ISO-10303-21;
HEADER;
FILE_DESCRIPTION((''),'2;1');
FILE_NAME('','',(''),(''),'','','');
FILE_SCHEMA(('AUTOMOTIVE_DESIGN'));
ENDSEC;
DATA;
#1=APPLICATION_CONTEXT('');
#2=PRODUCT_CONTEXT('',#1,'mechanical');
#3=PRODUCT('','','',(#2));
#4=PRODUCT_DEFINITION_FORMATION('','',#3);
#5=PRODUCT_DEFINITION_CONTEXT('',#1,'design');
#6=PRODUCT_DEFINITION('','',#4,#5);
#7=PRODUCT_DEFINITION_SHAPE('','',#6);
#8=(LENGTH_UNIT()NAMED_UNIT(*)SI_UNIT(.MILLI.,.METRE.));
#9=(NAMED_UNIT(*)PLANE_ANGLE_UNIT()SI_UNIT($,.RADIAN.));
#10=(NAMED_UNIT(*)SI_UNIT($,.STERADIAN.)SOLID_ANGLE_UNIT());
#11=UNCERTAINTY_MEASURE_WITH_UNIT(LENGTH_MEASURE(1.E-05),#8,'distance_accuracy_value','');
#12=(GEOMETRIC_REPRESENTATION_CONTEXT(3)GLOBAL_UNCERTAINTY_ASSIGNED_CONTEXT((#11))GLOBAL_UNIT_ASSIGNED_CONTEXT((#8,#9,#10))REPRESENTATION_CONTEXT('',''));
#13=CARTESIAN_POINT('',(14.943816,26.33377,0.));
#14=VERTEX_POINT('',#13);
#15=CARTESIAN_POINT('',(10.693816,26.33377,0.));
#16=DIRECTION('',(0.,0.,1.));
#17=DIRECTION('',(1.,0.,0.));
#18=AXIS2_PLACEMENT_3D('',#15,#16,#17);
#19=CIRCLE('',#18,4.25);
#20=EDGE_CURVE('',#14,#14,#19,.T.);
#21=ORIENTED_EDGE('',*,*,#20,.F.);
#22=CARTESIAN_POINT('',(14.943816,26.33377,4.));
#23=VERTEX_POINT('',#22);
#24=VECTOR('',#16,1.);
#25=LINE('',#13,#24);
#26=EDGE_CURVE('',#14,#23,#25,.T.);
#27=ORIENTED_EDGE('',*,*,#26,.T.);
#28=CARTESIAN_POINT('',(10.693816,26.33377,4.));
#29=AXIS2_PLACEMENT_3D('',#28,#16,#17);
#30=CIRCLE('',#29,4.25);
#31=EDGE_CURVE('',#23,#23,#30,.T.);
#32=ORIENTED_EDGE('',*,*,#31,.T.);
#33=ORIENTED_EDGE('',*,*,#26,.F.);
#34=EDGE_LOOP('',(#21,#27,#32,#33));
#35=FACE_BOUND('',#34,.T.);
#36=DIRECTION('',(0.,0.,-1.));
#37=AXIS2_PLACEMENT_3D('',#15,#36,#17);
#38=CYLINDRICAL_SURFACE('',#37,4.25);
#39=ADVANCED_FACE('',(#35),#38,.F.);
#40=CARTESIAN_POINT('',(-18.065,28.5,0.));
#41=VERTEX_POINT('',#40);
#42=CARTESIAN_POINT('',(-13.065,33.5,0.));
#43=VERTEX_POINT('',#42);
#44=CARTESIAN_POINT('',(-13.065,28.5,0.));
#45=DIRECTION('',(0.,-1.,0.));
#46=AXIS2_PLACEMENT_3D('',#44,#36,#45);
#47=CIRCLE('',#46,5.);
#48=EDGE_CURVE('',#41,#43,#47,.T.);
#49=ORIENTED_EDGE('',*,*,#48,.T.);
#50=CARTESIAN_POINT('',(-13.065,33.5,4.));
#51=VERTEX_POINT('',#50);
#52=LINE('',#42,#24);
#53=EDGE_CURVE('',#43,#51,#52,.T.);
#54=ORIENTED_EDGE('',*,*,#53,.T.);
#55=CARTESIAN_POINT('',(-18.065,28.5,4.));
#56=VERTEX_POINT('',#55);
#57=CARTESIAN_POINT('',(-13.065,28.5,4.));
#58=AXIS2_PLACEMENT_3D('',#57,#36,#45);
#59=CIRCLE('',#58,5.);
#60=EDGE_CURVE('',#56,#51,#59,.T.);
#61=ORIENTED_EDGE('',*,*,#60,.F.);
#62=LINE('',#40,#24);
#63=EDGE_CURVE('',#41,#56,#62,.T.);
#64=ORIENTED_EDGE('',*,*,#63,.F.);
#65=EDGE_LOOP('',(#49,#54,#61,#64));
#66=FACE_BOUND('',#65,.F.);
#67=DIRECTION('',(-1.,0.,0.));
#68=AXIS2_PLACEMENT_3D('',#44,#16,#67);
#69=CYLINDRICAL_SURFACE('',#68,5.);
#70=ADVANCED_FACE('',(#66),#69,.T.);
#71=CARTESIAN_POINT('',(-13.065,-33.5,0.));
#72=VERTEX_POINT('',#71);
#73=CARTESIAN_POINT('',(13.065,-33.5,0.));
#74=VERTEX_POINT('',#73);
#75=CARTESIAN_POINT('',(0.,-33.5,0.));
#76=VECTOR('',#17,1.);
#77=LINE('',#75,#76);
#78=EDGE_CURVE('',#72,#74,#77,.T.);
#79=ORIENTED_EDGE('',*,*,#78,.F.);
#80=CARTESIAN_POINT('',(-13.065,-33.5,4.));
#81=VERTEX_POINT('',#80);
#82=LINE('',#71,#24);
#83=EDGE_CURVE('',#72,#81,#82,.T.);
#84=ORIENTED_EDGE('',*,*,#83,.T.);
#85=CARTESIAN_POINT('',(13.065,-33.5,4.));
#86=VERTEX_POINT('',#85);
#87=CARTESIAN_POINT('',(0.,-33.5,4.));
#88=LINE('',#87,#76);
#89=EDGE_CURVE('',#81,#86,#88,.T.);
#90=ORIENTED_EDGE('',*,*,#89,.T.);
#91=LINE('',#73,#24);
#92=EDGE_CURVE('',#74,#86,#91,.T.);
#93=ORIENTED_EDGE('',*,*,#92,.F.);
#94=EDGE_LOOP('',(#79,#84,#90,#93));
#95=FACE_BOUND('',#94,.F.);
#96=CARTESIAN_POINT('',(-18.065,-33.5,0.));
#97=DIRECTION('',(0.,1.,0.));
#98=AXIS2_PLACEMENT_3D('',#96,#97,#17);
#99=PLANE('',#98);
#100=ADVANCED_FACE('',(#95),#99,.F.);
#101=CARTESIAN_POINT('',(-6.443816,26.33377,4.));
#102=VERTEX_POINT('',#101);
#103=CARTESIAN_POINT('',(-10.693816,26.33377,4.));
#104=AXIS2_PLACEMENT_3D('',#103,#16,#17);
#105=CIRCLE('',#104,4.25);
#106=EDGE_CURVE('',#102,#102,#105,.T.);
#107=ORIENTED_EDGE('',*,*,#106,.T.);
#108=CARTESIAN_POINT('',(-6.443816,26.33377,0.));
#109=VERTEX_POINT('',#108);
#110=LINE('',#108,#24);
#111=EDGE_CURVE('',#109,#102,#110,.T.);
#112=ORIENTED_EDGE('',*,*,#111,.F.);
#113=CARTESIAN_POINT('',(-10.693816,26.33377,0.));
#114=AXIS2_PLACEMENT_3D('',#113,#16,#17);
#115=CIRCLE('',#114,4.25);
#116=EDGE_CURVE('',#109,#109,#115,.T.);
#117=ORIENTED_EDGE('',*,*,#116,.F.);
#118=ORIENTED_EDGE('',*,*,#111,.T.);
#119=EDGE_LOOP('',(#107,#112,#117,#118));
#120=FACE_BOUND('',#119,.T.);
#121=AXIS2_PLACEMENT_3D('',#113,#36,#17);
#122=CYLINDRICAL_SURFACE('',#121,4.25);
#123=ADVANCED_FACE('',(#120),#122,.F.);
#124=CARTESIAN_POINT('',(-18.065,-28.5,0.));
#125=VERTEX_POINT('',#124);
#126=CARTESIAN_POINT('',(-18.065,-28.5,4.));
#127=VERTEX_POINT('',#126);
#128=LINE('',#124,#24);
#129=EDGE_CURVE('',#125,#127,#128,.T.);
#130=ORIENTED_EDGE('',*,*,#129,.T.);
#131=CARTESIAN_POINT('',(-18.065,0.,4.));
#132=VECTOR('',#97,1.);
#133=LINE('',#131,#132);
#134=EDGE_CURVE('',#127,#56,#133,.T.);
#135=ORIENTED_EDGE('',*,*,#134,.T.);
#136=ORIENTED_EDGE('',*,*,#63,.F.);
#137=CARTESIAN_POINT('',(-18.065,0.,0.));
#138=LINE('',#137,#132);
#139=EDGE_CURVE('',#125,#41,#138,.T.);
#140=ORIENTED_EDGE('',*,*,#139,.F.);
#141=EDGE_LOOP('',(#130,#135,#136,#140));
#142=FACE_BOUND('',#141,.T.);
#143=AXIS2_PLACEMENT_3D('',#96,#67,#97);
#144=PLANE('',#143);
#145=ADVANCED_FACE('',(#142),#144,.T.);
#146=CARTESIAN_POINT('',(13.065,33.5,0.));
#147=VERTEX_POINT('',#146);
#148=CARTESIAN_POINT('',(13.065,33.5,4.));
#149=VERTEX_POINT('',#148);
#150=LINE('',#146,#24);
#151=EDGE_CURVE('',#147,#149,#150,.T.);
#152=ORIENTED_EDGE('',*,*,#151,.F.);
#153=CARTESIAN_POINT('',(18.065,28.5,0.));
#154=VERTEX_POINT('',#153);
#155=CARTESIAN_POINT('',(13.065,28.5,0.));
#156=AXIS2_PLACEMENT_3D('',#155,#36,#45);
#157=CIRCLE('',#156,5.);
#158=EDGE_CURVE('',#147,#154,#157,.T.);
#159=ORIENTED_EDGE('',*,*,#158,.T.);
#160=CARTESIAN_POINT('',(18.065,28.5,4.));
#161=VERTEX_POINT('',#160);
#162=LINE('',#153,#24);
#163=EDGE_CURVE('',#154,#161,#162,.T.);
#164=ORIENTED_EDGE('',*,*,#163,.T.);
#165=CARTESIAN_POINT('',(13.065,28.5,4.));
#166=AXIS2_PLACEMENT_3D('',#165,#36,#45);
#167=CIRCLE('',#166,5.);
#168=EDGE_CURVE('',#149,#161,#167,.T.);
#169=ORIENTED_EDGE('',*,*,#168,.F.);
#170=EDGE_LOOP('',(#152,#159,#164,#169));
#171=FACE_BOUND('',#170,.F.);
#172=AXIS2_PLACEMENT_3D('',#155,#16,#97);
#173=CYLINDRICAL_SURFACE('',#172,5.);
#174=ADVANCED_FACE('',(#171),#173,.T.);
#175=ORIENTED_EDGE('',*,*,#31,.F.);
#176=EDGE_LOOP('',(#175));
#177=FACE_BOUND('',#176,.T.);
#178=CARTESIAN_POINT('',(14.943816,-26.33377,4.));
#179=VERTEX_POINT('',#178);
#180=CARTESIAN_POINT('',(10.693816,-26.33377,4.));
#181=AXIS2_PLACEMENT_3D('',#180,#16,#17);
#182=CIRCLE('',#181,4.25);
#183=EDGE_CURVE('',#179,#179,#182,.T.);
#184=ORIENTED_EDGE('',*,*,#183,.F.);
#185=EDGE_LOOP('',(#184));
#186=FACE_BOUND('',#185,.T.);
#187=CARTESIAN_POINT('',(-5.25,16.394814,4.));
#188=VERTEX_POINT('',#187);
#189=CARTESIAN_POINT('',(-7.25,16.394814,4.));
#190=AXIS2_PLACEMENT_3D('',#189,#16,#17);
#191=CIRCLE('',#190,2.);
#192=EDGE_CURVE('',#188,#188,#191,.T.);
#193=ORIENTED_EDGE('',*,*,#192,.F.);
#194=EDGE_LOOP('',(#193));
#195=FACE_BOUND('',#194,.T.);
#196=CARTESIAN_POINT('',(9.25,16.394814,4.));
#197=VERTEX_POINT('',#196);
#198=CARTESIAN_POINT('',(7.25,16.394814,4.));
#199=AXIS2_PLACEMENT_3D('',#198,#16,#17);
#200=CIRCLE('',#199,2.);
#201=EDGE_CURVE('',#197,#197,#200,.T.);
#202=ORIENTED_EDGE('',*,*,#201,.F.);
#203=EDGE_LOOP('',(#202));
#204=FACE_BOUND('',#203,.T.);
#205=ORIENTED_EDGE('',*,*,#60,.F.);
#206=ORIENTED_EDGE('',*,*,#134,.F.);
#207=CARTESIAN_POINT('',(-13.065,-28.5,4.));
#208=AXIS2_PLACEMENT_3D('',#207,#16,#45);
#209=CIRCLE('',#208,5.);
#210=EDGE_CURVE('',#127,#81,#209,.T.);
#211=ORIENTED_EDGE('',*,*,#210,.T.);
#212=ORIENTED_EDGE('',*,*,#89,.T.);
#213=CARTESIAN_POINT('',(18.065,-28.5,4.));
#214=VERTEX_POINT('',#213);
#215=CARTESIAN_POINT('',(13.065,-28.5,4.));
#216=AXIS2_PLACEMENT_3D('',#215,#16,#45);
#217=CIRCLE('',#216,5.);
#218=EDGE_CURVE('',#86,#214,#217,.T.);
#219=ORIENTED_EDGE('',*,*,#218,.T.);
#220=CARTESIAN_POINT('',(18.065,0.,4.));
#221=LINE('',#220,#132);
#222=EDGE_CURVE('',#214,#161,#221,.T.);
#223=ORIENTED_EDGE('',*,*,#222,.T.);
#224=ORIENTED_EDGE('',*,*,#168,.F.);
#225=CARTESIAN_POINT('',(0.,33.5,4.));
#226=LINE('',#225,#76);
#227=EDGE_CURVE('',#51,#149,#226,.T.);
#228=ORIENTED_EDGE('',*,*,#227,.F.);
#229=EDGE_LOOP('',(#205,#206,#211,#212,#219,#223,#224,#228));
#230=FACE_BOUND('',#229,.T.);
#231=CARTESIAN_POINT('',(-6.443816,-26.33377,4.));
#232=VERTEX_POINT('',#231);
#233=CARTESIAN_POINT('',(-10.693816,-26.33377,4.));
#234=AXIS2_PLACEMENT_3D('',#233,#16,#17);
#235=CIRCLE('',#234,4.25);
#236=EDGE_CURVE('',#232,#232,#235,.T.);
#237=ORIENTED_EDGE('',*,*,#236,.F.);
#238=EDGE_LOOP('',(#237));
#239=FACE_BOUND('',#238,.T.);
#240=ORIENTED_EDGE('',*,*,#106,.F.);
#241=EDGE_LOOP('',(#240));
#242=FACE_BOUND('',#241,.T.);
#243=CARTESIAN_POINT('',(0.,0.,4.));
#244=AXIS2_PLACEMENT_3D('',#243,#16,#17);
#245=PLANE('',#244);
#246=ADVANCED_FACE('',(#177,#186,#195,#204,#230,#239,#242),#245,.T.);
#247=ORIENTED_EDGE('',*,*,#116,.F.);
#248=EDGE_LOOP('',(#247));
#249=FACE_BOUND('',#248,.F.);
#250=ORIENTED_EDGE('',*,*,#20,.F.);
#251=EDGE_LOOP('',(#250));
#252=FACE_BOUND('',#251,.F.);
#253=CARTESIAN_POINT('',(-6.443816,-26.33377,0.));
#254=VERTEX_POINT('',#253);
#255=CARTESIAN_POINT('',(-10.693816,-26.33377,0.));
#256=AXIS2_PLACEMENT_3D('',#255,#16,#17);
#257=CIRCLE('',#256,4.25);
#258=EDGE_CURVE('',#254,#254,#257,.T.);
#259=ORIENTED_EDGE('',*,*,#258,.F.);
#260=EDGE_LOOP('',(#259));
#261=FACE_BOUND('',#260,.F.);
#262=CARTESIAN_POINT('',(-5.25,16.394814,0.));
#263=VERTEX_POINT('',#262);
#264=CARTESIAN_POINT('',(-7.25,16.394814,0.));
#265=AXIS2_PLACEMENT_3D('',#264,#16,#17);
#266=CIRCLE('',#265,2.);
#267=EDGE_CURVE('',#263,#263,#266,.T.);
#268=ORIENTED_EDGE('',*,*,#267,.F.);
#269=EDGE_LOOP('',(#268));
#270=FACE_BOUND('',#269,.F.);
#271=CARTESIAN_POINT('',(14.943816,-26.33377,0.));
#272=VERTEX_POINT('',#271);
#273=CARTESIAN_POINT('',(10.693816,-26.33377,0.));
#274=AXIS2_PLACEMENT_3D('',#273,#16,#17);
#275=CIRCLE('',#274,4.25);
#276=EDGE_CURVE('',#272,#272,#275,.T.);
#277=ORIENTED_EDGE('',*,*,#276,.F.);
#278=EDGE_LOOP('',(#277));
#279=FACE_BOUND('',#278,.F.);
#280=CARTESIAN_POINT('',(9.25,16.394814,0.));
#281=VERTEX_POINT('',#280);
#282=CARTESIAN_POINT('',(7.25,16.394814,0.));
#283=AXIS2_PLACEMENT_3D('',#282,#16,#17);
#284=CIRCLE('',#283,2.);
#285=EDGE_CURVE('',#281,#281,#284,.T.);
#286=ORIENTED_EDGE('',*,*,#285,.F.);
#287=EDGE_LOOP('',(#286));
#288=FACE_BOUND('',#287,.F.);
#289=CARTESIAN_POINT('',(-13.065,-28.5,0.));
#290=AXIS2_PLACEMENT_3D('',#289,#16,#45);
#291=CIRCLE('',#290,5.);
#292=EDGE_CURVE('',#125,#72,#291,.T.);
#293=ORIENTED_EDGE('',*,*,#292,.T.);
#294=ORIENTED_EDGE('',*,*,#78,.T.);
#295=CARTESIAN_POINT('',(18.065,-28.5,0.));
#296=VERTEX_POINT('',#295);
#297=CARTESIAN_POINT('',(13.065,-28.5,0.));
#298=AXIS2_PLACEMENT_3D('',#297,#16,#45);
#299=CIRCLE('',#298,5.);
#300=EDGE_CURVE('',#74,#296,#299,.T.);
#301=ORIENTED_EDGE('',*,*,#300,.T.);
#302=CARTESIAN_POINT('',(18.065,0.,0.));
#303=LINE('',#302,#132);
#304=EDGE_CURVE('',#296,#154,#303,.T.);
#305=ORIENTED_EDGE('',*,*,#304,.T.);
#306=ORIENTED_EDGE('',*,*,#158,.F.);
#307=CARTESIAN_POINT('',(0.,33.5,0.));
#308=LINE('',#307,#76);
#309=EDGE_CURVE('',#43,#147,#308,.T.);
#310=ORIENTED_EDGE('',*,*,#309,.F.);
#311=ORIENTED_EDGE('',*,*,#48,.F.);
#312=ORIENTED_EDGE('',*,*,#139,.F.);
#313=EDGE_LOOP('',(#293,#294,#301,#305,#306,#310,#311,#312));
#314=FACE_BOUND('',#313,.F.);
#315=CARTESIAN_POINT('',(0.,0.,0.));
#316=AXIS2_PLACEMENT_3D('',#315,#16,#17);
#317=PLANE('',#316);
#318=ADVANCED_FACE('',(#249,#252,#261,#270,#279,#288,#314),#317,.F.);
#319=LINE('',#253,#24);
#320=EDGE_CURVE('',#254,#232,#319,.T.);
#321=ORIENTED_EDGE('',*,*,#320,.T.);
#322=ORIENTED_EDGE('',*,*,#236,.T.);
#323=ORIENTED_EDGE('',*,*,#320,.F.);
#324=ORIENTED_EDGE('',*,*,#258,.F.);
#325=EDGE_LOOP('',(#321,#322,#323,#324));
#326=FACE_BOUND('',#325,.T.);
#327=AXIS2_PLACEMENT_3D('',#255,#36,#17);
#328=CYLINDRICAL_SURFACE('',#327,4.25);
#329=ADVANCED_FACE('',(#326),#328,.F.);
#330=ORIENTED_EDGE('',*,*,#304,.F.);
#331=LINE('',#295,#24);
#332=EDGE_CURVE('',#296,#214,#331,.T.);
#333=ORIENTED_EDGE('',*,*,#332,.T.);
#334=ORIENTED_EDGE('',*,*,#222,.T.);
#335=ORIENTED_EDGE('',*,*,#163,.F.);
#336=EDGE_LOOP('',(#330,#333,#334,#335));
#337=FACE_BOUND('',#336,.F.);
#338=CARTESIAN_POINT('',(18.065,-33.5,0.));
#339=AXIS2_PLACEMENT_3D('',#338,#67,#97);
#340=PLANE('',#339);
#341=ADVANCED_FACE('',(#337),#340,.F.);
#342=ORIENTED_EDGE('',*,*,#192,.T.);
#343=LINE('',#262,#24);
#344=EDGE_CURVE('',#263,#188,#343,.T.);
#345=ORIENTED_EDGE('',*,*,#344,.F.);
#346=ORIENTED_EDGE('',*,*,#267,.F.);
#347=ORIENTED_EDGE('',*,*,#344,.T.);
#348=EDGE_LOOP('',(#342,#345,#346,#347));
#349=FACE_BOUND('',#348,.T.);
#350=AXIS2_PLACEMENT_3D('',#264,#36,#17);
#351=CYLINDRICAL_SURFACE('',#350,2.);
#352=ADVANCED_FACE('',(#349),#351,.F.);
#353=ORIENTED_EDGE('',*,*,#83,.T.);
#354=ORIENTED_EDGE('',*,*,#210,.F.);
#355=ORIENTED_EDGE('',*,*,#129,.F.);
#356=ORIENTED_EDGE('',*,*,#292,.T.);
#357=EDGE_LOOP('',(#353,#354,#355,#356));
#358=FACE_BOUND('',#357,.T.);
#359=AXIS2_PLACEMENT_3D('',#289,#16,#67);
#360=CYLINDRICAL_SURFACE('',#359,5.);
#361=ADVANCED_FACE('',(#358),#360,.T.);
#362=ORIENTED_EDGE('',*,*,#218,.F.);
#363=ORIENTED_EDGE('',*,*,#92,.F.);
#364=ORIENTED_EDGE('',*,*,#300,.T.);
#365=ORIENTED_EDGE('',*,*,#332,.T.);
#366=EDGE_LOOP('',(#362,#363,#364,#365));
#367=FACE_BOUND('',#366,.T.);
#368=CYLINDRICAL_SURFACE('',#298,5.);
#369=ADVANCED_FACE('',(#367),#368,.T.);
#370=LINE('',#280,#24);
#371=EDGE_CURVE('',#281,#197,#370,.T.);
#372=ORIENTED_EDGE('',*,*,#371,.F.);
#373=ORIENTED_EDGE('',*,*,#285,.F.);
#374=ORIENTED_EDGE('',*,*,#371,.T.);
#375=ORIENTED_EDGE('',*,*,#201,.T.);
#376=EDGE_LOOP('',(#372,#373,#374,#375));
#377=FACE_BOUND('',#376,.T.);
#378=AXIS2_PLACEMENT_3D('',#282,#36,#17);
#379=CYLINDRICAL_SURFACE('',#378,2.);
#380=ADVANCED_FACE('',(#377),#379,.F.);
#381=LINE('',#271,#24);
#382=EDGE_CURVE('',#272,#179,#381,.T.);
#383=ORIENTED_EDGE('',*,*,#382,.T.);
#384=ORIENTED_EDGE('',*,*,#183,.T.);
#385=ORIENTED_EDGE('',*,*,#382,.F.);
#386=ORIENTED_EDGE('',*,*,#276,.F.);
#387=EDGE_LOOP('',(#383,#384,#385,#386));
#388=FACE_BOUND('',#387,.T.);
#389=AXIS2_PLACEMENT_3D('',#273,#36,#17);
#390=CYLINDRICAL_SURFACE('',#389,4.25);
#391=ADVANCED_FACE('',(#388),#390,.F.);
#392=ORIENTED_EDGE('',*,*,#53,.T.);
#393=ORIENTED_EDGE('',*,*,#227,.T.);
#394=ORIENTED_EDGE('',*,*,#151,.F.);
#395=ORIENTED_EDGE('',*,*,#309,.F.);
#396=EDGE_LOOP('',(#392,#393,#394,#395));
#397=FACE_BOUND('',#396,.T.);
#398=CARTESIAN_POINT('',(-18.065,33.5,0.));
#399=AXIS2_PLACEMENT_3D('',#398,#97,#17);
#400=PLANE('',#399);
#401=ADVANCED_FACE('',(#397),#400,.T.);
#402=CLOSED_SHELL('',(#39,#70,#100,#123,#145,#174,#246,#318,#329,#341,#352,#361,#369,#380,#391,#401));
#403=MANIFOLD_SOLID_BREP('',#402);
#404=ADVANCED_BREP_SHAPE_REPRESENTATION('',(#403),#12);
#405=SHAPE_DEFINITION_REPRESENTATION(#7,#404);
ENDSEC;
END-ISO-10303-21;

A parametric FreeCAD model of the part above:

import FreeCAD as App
import Part
import Sketcher

V = App.Vector


def edges_at(feature, points):
    """Names of the edges that pass closest to the given points."""
    edges = feature.Shape.Edges
    near = lambda p: min(range(len(edges)), key=lambda i: edges[i].distToShape(Part.Vertex(*p))[0])
    return sorted({f"Edge{near(p) + 1}" for p in points})

doc = App.newDocument("Part")
body = doc.addObject("PartDesign::Body", "Body")

# Sketch on XY plane
sketch1 = body.newObject("Sketcher::SketchObject", "Sketch")
sketch1.AttachmentSupport = (doc.getObject("XY_Plane"), [""])
sketch1.MapMode = "FlatFace"
sketch1.addGeometry([
    Part.LineSegment(V(-18.065, 33.5, 0), V(-18.065, -33.5, 0)),  # 0
    Part.LineSegment(V(-18.065, -33.5, 0), V(18.065, -33.5, 0)),  # 1
    Part.LineSegment(V(18.065, -33.5, 0), V(18.065, 33.5, 0)),  # 2
    Part.LineSegment(V(18.065, 33.5, 0), V(-18.065, 33.5, 0)),  # 3
    Part.Circle(V(-10.693816, -26.33377, 0), V(0, 0, 1), 4.25),  # 4
    Part.Circle(V(10.693816, -26.33377, 0), V(0, 0, 1), 4.25),  # 5
    Part.Circle(V(-10.693816, 26.33377, 0), V(0, 0, 1), 4.25),  # 6
    Part.Circle(V(-7.25, 16.394814, 0), V(0, 0, 1), 2),  # 7
    Part.Circle(V(7.25, 16.394814, 0), V(0, 0, 1), 2),  # 8
    Part.Circle(V(10.693816, 26.33377, 0), V(0, 0, 1), 4.25),  # 9
], False)
sketch1.addConstraint([
    Sketcher.Constraint("Coincident", 0, 2, 1, 1),
    Sketcher.Constraint("Coincident", 1, 2, 2, 1),
    Sketcher.Constraint("Coincident", 2, 2, 3, 1),
    Sketcher.Constraint("Coincident", 3, 2, 0, 1),
    Sketcher.Constraint("Vertical", 0),
    Sketcher.Constraint("Horizontal", 1),
    Sketcher.Constraint("Vertical", 2),
    Sketcher.Constraint("Horizontal", 3),
    Sketcher.Constraint("Equal", 4, 5),
    Sketcher.Constraint("Equal", 5, 6),
    Sketcher.Constraint("Equal", 7, 8),
    Sketcher.Constraint("Equal", 6, 9),
    Sketcher.Constraint("Symmetric", 5, 3, 6, 3, -1, 1),
    Sketcher.Constraint("Symmetric", 4, 3, 9, 3, -1, 1),
    Sketcher.Constraint("Symmetric", 0, 2, 2, 2, -1, 1),
    Sketcher.Constraint("Symmetric", 4, 3, 5, 3, -2),
    Sketcher.Constraint("Symmetric", 7, 3, 8, 3, -2),
    Sketcher.Constraint("Diameter", 7, 4.0),
    Sketcher.Constraint("Diameter", 4, 8.5),
    Sketcher.Constraint("DistanceY", 0, 2, 0, 1, 67.0),
    Sketcher.Constraint("DistanceX", 1, 1, 1, 2, 36.13),
    Sketcher.Constraint("DistanceX", 7, 3, 8, 3, 14.5),
    Sketcher.Constraint("DistanceY", 4, 3, -1, 1, 26.33377),
    Sketcher.Constraint("DistanceX", 4, 3, 5, 3, 21.387632),
    Sketcher.Constraint("DistanceY", -1, 1, 7, 3, 16.394814),
])
pad1 = body.newObject("PartDesign::Pad", "Pad")
pad1.Profile = sketch1
pad1.Length = 4
doc.recompute()

fillet = body.newObject("PartDesign::Fillet", "Fillet")
fillet.Base = (pad1, edges_at(pad1, [
    (18.065, -33.5, 2),
    (-18.065, -33.5, 2),
    (18.065, 33.5, 2),
    (-18.065, 33.5, 2),
]))
fillet.Radius = 5

doc.recompute()
